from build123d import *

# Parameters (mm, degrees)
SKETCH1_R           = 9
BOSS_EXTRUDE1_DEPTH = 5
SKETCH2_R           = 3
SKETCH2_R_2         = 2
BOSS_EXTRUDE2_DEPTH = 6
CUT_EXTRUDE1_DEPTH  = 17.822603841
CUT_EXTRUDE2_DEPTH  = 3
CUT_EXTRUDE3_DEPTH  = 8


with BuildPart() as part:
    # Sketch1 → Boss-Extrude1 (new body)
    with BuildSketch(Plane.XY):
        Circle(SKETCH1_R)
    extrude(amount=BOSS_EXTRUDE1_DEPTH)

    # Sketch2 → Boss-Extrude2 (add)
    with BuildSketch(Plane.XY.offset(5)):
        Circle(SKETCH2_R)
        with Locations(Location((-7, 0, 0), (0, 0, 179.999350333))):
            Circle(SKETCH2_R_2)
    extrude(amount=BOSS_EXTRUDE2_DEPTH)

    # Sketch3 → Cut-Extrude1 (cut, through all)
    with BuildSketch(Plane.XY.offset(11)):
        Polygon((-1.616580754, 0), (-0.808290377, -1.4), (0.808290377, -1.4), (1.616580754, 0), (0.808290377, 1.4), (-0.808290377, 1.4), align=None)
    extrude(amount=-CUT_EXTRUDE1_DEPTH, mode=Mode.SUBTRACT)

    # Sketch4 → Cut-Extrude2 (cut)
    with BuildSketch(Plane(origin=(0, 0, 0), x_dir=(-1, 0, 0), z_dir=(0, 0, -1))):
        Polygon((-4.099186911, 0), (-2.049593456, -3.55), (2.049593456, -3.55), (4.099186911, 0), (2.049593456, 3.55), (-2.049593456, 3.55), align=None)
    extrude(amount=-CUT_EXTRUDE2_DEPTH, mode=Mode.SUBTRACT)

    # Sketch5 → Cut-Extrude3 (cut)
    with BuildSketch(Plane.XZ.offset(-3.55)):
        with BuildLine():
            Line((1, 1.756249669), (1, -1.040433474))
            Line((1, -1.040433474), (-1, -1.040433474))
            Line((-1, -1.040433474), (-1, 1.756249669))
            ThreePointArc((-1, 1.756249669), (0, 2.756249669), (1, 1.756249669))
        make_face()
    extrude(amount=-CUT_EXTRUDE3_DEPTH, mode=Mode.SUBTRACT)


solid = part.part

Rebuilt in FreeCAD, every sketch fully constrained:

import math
import FreeCAD as App
import Part
import Sketcher
Q = App.Units.Quantity


def add_polygon(sketch, points):
    """Adds a closed chain of lines whose ends are joined by coincident constraints."""
    first, n = sketch.GeometryCount, len(points)
    for a, b in zip(points, points[1:] + points[:1]):
        sketch.addGeometry(Part.LineSegment(App.Vector(*a, 0), App.Vector(*b, 0)), False)
    for i in range(n):
        sketch.addConstraint(Sketcher.Constraint("Coincident", first + i, 2, first + (i + 1) % n, 1))

doc = App.newDocument("Part")
params = doc.addObject("Spreadsheet::Sheet", "Params")
for row, (alias, value) in enumerate([
    ("sketch1_diameter", "18 mm"),
    ("pad1_length", "5 mm"),
    ("sketch2_diameter", "6 mm"),
    ("sketch2_diameter2", "4 mm"),
    ("pad2_length", "6 mm"),
    ("pocket2_length", "3 mm"),
    ("sketch5_radius", "1 mm"),
    ("pocket3_length", "8 mm"),
], start=1):
    params.set(f"A{row}", alias)
    params.set(f"B{row}", "=" + value)
    params.setAlias(f"B{row}", alias)

body = doc.addObject("PartDesign::Body", "Body")

# Sketch on XY plane
sketch1 = doc.addObject("Sketcher::SketchObject", "Sketch")
body.addObject(sketch1)
sketch1.AttachmentSupport = (doc.XY_Plane, [""])
sketch1.MapMode = "FlatFace"
sketch1.addGeometry(Part.Circle(App.Vector(0, 0, 0), App.Vector(0, 0, 1), 9), False)
sketch1.addConstraint([
    Sketcher.Constraint("Coincident", 0, 3, -1, 1),
    Sketcher.Constraint("Diameter", 0, 18.0),
])
sketch1.setExpression("Constraints[1]", "Params.sketch1_diameter")
pad1 = doc.addObject("PartDesign::Pad", "Pad")
body.addObject(pad1)
pad1.Profile = sketch1
pad1.setExpression("Length", "Params.pad1_length")

# Sketch on XY plane
sketch2 = doc.addObject("Sketcher::SketchObject", "Sketch001")
body.addObject(sketch2)
sketch2.AttachmentSupport = (doc.XY_Plane, [""])
sketch2.MapMode = "FlatFace"
sketch2.AttachmentOffset = App.Placement(App.Vector(0, 0, 5), App.Rotation())
sketch2.addGeometry([
    Part.Circle(App.Vector(0, 0, 0), App.Vector(0, 0, 1), 3),
    Part.Circle(App.Vector(-7, 0, 0), App.Vector(0, 0, 1), 2),
], False)
sketch2.addConstraint([
    Sketcher.Constraint("Coincident", 0, 3, -1, 1),
    Sketcher.Constraint("PointOnObject", 1, 3, -1),
    Sketcher.Constraint("Diameter", 0, 6.0),
    Sketcher.Constraint("Diameter", 1, 4.0),
    Sketcher.Constraint("DistanceX", 1, 3, -1, 1, 7.0),
])
sketch2.setExpression("Constraints[2]", "Params.sketch2_diameter")
sketch2.setExpression("Constraints[3]", "Params.sketch2_diameter2")
pad2 = doc.addObject("PartDesign::Pad", "Pad001")
body.addObject(pad2)
pad2.Profile = sketch2
pad2.setExpression("Length", "Params.pad2_length")

# Sketch on XY plane
sketch3 = doc.addObject("Sketcher::SketchObject", "Sketch002")
body.addObject(sketch3)
sketch3.AttachmentSupport = (doc.XY_Plane, [""])
sketch3.MapMode = "FlatFace"
sketch3.AttachmentOffset = App.Placement(App.Vector(0, 0, 11), App.Rotation())
add_polygon(sketch3, [(-1.6, 0), (-0.8, -1.4), (0.8, -1.4), (1.6, 0), (0.8, 1.4), (-0.8, 1.4)])  # lines 0-5
sketch3.addConstraint([
    Sketcher.Constraint("Horizontal", 1),
    Sketcher.Constraint("Horizontal", 4),
    Sketcher.Constraint("Symmetric", 0, 2, 3, 2, -1, 1),
    Sketcher.Constraint("Symmetric", 2, 2, 5, 2, -1, 1),
    Sketcher.Constraint("PointOnObject", 2, 2, -1),
    Sketcher.Constraint("Parallel", 2, 5),
    Sketcher.Constraint("Vertical", 1, 2, 3, 2),
    Sketcher.Constraint("Angle", 0, Q("-60 deg")),
    Sketcher.Constraint("DistanceY", 0, 2, -1, 1, 1.4),
    Sketcher.Constraint("DistanceX", 1, 1, 1, 2, 1.616581),
])
pocket1 = doc.addObject("PartDesign::Pocket", "Pocket")
body.addObject(pocket1)
pocket1.Profile = sketch3
pocket1.Type = "ThroughAll"

# Sketch on XY plane
sketch4 = doc.addObject("Sketcher::SketchObject", "Sketch003")
body.addObject(sketch4)
sketch4.AttachmentSupport = (doc.XY_Plane, [""])
sketch4.MapMode = "FlatFace"
add_polygon(sketch4, [(4.1, 0), (2, -3.5), (-2, -3.5), (-4.1, 0), (-2, 3.5), (2, 3.5)])  # lines 0-5
sketch4.addConstraint([
    Sketcher.Constraint("Horizontal", 1),
    Sketcher.Constraint("Horizontal", 4),
    Sketcher.Constraint("Symmetric", 0, 2, 3, 2, -1, 1),
    Sketcher.Constraint("Symmetric", 2, 2, 5, 2, -1, 1),
    Sketcher.Constraint("PointOnObject", 2, 2, -1),
    Sketcher.Constraint("Parallel", 2, 5),
    Sketcher.Constraint("Vertical", 1, 2, 3, 2),
    Sketcher.Constraint("Angle", 0, Q("-120 deg")),
    Sketcher.Constraint("DistanceY", 1, 2, 3, 2, 7.1),
    Sketcher.Constraint("DistanceX", 1, 2, 1, 1, 4.099187),
])
pocket2 = doc.addObject("PartDesign::Pocket", "Pocket001")
body.addObject(pocket2)
pocket2.Profile = sketch4
pocket2.setExpression("Length", "Params.pocket2_length")
pocket2.Reversed = True

# Sketch on XZ plane
sketch5 = doc.addObject("Sketcher::SketchObject", "Sketch004")
body.addObject(sketch5)
sketch5.AttachmentSupport = (doc.XZ_Plane, [""])
sketch5.MapMode = "FlatFace"
sketch5.AttachmentOffset = App.Placement(App.Vector(0, 0, -3.55), App.Rotation())
sketch5.addGeometry([
    Part.LineSegment(App.Vector(1, -1, 0), App.Vector(1, 1.8, 0)),
    Part.ArcOfCircle(Part.Circle(App.Vector(0, 1.8, 0), App.Vector(0, 0, 1), 1), math.radians(0), math.radians(180)),
    Part.LineSegment(App.Vector(-1, 1.8, 0), App.Vector(-1, -1, 0)),
    Part.LineSegment(App.Vector(-1, -1, 0), App.Vector(1, -1, 0)),
], False)
sketch5.addConstraint([
    Sketcher.Constraint("Tangent", 0, 2, 1, 1),
    Sketcher.Constraint("Tangent", 1, 2, 2, 1),
    Sketcher.Constraint("Coincident", 2, 2, 3, 1),
    Sketcher.Constraint("Coincident", 3, 2, 0, 1),
    Sketcher.Constraint("Vertical", 0),
    Sketcher.Constraint("Vertical", 2),
    Sketcher.Constraint("Horizontal", 3),
    Sketcher.Constraint("PointOnObject", 1, 3, -2),
    Sketcher.Constraint("Radius", 1, 1.0),
    Sketcher.Constraint("DistanceY", 0, 1, 0, 2, 2.796683),
    Sketcher.Constraint("DistanceY", -1, 1, 1, 3, 1.75625),
])
sketch5.setExpression("Constraints[8]", "Params.sketch5_radius")
pocket3 = doc.addObject("PartDesign::Pocket", "Pocket002")
body.addObject(pocket3)
pocket3.Profile = sketch5
pocket3.setExpression("Length", "Params.pocket3_length")

doc.recompute()
